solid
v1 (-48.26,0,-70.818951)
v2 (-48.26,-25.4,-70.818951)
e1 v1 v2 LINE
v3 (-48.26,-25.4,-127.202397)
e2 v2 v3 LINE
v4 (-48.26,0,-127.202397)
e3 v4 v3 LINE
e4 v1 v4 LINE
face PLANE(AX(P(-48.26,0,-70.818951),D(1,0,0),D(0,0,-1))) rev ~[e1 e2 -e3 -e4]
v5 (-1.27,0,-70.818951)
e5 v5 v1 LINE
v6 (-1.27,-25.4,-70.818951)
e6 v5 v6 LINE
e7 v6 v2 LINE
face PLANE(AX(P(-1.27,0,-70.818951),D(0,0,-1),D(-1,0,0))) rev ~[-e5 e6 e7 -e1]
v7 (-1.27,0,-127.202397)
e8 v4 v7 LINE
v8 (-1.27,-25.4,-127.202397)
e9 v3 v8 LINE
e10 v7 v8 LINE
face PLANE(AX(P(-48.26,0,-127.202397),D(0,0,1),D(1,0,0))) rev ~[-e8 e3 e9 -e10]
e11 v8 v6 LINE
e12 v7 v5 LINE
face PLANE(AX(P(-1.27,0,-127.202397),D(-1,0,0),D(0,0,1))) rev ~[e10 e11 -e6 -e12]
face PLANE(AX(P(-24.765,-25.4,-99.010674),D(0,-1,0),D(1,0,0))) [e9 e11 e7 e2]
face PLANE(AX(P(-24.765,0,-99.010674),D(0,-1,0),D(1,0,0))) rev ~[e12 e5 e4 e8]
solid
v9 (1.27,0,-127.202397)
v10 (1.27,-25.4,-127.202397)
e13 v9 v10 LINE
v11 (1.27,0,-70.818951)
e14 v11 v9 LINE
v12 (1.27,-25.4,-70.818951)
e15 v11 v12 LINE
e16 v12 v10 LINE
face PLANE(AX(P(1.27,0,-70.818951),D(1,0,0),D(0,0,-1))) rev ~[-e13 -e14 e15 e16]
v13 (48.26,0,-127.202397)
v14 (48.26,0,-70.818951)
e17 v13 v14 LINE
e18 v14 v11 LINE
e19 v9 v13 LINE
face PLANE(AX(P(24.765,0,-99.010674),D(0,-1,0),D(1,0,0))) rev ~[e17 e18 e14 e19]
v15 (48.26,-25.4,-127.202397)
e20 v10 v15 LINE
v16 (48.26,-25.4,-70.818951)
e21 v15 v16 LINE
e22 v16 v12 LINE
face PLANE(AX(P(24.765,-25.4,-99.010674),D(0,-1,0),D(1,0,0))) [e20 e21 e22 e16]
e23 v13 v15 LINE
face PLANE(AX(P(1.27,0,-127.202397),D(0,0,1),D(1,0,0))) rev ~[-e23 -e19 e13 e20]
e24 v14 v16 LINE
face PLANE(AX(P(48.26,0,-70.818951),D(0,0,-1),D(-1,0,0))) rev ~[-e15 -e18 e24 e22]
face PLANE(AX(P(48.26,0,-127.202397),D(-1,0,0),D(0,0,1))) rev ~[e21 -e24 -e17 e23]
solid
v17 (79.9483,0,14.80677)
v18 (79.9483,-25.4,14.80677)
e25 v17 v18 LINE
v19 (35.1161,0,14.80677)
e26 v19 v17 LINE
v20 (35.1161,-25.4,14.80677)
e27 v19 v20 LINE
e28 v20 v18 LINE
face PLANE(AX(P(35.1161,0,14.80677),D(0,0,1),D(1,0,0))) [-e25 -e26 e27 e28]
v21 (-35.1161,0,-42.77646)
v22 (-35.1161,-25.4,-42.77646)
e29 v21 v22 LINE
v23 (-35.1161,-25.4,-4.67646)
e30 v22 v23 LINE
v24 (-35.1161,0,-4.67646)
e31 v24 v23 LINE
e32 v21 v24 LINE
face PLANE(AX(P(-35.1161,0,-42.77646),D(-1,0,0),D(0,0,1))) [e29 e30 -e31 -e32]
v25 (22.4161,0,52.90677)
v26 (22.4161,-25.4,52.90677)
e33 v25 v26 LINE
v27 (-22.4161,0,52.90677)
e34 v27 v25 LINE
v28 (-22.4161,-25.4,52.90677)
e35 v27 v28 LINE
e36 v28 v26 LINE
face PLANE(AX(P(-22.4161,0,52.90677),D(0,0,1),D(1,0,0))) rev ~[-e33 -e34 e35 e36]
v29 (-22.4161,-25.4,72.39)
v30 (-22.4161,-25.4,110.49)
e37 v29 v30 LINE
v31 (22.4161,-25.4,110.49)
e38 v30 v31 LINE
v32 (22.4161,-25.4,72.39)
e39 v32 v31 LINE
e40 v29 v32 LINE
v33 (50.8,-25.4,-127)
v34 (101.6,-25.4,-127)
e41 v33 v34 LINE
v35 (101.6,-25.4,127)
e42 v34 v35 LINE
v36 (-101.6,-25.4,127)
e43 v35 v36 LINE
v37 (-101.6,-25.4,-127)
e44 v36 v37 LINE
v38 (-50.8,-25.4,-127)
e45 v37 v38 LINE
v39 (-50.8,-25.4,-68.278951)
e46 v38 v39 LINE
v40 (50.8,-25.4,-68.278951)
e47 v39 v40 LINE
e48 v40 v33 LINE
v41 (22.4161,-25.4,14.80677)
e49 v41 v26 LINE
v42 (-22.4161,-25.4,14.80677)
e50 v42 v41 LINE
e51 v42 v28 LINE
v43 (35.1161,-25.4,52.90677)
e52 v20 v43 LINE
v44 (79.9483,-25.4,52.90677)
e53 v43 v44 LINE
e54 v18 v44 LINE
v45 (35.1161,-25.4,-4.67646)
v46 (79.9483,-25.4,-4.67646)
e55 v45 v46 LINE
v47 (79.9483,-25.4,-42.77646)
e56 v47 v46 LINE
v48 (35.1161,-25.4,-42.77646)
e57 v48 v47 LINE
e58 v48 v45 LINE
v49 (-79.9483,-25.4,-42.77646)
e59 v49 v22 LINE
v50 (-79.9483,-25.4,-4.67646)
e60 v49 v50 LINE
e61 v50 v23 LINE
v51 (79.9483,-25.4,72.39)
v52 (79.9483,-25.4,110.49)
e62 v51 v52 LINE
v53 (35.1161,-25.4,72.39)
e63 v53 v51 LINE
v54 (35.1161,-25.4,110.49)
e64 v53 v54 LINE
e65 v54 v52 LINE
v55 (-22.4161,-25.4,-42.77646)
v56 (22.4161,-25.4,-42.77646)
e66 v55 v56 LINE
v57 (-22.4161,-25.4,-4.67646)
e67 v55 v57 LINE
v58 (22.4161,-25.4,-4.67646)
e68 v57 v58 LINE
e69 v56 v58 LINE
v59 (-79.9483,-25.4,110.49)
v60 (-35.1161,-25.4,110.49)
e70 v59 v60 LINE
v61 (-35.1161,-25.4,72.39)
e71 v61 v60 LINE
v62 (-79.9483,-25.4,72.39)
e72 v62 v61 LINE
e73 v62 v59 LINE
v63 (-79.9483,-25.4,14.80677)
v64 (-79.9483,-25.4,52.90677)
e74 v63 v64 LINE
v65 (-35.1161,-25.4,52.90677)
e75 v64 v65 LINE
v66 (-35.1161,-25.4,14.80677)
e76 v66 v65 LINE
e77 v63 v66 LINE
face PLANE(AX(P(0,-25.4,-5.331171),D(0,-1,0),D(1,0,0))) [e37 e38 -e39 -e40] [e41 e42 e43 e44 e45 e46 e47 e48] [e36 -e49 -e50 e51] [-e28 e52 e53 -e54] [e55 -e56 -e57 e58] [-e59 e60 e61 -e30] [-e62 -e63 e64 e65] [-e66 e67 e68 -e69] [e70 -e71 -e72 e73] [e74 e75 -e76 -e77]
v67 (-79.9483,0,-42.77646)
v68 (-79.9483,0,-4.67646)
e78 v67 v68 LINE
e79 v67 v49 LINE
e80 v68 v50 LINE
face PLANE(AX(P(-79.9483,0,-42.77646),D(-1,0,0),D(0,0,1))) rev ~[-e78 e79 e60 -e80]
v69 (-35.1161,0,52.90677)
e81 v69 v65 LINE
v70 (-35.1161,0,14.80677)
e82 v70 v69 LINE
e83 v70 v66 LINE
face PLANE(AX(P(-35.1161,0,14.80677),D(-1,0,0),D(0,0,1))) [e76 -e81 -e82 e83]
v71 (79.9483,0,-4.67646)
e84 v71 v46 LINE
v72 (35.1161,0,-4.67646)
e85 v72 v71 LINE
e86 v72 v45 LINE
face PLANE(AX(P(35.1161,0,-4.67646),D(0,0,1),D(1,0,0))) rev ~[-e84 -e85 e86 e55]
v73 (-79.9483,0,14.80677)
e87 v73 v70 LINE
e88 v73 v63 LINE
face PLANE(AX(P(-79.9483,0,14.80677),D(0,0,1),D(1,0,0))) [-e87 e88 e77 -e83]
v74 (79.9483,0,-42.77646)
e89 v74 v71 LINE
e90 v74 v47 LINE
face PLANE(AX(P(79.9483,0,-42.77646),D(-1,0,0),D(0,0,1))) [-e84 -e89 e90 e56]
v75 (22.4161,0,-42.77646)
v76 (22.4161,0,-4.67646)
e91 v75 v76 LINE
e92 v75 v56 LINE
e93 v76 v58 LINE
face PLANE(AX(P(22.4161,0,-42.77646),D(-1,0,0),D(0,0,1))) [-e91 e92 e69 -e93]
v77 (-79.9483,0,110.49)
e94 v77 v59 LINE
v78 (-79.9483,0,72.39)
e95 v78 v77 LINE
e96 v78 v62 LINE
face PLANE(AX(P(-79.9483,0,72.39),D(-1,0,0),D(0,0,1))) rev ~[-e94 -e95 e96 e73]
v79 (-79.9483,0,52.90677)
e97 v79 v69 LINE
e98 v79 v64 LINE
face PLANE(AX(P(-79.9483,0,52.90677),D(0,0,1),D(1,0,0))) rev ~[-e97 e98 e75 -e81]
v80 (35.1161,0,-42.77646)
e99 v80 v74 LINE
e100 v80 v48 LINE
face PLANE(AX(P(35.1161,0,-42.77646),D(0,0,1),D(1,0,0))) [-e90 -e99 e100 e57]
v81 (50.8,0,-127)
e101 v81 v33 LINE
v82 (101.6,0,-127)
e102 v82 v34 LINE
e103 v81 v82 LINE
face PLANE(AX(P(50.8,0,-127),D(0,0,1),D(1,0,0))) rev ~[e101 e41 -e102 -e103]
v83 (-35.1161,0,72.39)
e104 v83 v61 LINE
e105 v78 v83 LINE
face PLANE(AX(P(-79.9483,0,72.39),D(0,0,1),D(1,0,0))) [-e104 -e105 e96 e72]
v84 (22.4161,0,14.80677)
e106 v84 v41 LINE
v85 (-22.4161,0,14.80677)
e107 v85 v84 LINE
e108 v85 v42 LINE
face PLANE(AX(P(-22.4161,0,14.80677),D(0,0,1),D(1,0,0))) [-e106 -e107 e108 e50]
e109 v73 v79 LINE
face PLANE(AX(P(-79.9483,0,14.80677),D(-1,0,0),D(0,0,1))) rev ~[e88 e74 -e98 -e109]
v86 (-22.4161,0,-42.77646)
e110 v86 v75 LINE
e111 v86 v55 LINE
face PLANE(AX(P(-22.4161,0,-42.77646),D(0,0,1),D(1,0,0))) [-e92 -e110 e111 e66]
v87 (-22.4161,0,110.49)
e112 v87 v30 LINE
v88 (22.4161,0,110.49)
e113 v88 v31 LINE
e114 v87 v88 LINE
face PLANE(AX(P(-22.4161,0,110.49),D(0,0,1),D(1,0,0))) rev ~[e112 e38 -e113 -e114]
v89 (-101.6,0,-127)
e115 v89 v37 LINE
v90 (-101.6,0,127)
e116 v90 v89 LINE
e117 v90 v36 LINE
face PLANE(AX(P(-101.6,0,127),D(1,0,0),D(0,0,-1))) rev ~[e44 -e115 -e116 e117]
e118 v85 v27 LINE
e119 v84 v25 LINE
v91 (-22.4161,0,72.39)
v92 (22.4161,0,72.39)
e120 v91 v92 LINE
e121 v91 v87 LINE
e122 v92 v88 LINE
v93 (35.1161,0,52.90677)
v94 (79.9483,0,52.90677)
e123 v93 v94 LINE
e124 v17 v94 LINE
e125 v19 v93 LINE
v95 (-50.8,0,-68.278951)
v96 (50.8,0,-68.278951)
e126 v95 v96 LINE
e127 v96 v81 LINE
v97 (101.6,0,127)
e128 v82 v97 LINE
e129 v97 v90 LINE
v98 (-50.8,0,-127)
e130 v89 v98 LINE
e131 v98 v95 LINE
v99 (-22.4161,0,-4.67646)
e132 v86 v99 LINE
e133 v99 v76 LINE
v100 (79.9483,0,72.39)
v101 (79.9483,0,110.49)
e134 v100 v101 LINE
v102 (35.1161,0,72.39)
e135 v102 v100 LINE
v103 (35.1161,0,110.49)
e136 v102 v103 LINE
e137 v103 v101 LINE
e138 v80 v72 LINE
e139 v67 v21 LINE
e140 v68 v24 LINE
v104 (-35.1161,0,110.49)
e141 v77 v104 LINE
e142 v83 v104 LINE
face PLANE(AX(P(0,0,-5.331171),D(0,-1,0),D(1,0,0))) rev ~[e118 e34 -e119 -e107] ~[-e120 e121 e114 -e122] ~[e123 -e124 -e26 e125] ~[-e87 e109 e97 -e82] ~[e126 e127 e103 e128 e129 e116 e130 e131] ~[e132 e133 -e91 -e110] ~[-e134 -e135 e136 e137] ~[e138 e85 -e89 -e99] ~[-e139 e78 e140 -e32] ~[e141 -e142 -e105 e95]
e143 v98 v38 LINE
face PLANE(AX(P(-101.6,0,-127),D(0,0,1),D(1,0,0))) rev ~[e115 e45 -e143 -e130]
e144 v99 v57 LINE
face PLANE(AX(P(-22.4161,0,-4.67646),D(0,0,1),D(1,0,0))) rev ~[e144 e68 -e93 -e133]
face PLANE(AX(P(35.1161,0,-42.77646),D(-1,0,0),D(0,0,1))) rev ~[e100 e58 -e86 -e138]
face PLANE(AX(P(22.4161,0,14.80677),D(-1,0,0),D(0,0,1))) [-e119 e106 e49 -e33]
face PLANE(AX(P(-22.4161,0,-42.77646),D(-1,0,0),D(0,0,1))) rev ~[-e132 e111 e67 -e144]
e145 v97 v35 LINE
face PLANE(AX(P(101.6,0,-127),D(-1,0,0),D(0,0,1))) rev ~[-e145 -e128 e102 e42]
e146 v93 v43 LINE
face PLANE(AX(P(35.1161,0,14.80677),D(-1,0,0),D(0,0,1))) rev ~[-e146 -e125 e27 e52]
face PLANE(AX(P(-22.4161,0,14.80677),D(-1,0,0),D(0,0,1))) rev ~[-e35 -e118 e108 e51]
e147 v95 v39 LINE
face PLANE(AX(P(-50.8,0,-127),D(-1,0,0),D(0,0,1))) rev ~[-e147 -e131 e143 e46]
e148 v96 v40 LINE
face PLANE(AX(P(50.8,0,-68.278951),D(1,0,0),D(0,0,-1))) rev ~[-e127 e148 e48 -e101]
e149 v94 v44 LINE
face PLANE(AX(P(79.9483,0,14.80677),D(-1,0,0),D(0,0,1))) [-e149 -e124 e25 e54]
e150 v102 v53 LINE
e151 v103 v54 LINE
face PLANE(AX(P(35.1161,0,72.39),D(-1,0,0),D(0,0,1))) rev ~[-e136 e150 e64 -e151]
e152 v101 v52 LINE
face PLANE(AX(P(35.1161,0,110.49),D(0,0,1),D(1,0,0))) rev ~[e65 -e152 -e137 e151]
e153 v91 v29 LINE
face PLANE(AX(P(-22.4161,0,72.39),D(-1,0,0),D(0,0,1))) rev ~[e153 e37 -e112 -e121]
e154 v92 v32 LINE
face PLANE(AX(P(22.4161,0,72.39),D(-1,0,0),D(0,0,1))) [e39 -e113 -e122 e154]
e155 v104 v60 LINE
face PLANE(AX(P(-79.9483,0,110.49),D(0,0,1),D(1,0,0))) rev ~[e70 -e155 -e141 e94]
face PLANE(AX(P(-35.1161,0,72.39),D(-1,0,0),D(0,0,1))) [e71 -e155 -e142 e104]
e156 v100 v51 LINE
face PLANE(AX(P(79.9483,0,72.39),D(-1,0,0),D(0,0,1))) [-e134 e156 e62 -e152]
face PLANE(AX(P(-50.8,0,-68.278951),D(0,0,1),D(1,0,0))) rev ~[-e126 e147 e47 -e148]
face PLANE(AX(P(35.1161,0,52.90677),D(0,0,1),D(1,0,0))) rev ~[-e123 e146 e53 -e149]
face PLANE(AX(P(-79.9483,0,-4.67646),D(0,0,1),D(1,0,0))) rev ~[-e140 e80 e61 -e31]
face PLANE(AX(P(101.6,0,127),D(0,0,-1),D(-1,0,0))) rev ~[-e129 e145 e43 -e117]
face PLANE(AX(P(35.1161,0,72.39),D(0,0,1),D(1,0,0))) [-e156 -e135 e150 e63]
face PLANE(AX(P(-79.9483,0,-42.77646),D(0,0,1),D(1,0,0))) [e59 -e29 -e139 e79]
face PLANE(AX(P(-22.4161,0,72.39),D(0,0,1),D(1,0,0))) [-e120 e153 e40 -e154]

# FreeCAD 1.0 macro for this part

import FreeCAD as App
import Part
import Sketcher
from FreeCAD import Vector
Q = App.Units.Quantity


def add_polygon(sketch, points):
    """Adds a closed chain of lines whose ends are joined by coincident constraints."""
    first, n = sketch.GeometryCount, len(points)
    for a, b in zip(points, points[1:] + points[:1]):
        sketch.addGeometry(Part.LineSegment(App.Vector(*a, 0), App.Vector(*b, 0)), False)
    for i in range(n):
        sketch.addConstraint(Sketcher.Constraint("Coincident", first + i, 2, first + (i + 1) % n, 1))

doc = App.newDocument("Part")
body = doc.addObject("PartDesign::Body", "Body")
body.AllowCompound = True

sketch1 = body.newObject("Sketcher::SketchObject", "Sketch")
sketch1.AttachmentSupport = (doc.getObject("XZ_Plane"), [""])
sketch1.MapMode = "FlatFace"
add_polygon(sketch1, [(102, 127), (-102, 127), (-102, -127), (-51, -127), (-51, -68), (51, -68), (51, -127), (102, -127)])
add_polygon(sketch1, [(-35, -43), (-80, -43), (-80, -5), (-35, -5)])
add_polygon(sketch1, [(22, -43), (-22, -43), (-22, -5), (22, -5)])
add_polygon(sketch1, [(80, -43), (35, -43), (35, -5), (80, -5)])
add_polygon(sketch1, [(-35, 15), (-80, 15), (-80, 53), (-35, 53)])
add_polygon(sketch1, [(-35, 72), (-80, 72), (-80, 110), (-35, 110)])
add_polygon(sketch1, [(22, 15), (-22, 15), (-22, 53), (22, 53)])
add_polygon(sketch1, [(80, 15), (35, 15), (35, 53), (80, 53)])
add_polygon(sketch1, [(22, 72), (-22, 72), (-22, 110), (22, 110)])
add_polygon(sketch1, [(80, 72), (35, 72), (35, 110), (80, 110)])
add_polygon(sketch1, [(-48, -71), (-48, -127), (-1, -127), (-1, -71)])
add_polygon(sketch1, [(1, -127), (48, -127), (48, -71), (1, -71)])
sketch1.addConstraint(Sketcher.Constraint("Horizontal", 0))
sketch1.addConstraint(Sketcher.Constraint("Vertical", 1))
sketch1.addConstraint(Sketcher.Constraint("Horizontal", 2))
sketch1.addConstraint(Sketcher.Constraint("Vertical", 3))
sketch1.addConstraint(Sketcher.Constraint("Horizontal", 4))
sketch1.addConstraint(Sketcher.Constraint("Vertical", 5))
sketch1.addConstraint(Sketcher.Constraint("Horizontal", 6))
sketch1.addConstraint(Sketcher.Constraint("Vertical", 7))
sketch1.addConstraint(Sketcher.Constraint("Horizontal", 8))
sketch1.addConstraint(Sketcher.Constraint("Vertical", 9))
sketch1.addConstraint(Sketcher.Constraint("Horizontal", 10))
sketch1.addConstraint(Sketcher.Constraint("Vertical", 11))
sketch1.addConstraint(Sketcher.Constraint("Horizontal", 12))
sketch1.addConstraint(Sketcher.Constraint("Vertical", 13))
sketch1.addConstraint(Sketcher.Constraint("Horizontal", 14))
sketch1.addConstraint(Sketcher.Constraint("Vertical", 15))
sketch1.addConstraint(Sketcher.Constraint("Horizontal", 16))
sketch1.addConstraint(Sketcher.Constraint("Vertical", 17))
sketch1.addConstraint(Sketcher.Constraint("Horizontal", 18))
sketch1.addConstraint(Sketcher.Constraint("Vertical", 19))
sketch1.addConstraint(Sketcher.Constraint("Horizontal", 20))
sketch1.addConstraint(Sketcher.Constraint("Vertical", 21))
sketch1.addConstraint(Sketcher.Constraint("Horizontal", 22))
sketch1.addConstraint(Sketcher.Constraint("Vertical", 23))
sketch1.addConstraint(Sketcher.Constraint("Horizontal", 24))
sketch1.addConstraint(Sketcher.Constraint("Vertical", 25))
sketch1.addConstraint(Sketcher.Constraint("Horizontal", 26))
sketch1.addConstraint(Sketcher.Constraint("Vertical", 27))
sketch1.addConstraint(Sketcher.Constraint("Horizontal", 28))
sketch1.addConstraint(Sketcher.Constraint("Vertical", 29))
sketch1.addConstraint(Sketcher.Constraint("Horizontal", 30))
sketch1.addConstraint(Sketcher.Constraint("Vertical", 31))
sketch1.addConstraint(Sketcher.Constraint("Horizontal", 32))
sketch1.addConstraint(Sketcher.Constraint("Vertical", 33))
sketch1.addConstraint(Sketcher.Constraint("Horizontal", 34))
sketch1.addConstraint(Sketcher.Constraint("Vertical", 35))
sketch1.addConstraint(Sketcher.Constraint("Horizontal", 36))
sketch1.addConstraint(Sketcher.Constraint("Vertical", 37))
sketch1.addConstraint(Sketcher.Constraint("Horizontal", 38))
sketch1.addConstraint(Sketcher.Constraint("Vertical", 39))
sketch1.addConstraint(Sketcher.Constraint("Horizontal", 40))
sketch1.addConstraint(Sketcher.Constraint("Vertical", 41))
sketch1.addConstraint(Sketcher.Constraint("Horizontal", 42))
sketch1.addConstraint(Sketcher.Constraint("Vertical", 43))
sketch1.addConstraint(Sketcher.Constraint("Vertical", 44))
sketch1.addConstraint(Sketcher.Constraint("Horizontal", 45))
sketch1.addConstraint(Sketcher.Constraint("Vertical", 46))
sketch1.addConstraint(Sketcher.Constraint("Horizontal", 47))
sketch1.addConstraint(Sketcher.Constraint("Horizontal", 48))
sketch1.addConstraint(Sketcher.Constraint("Vertical", 49))
sketch1.addConstraint(Sketcher.Constraint("Horizontal", 50))
sketch1.addConstraint(Sketcher.Constraint("Vertical", 51))
sketch1.addConstraint(Sketcher.Constraint("Symmetric", 0, 2, 6, 2, -1, 1))
sketch1.addConstraint(Sketcher.Constraint("Symmetric", 2, 2, 5, 2, -2))
sketch1.addConstraint(Sketcher.Constraint("Symmetric", 11, 2, 16, 2, -2))
sketch1.addConstraint(Sketcher.Constraint("Symmetric", 9, 2, 18, 2, -2))
sketch1.addConstraint(Sketcher.Constraint("Symmetric", 23, 2, 32, 2, -2))
sketch1.addConstraint(Sketcher.Constraint("Symmetric", 21, 2, 34, 2, -2))
sketch1.addConstraint(Sketcher.Constraint("Symmetric", 27, 2, 40, 2, -2))
sketch1.addConstraint(Sketcher.Constraint("Symmetric", 25, 2, 42, 2, -2))
sketch1.addConstraint(Sketcher.Constraint("Symmetric", 44, 2, 48, 2, -2))
sketch1.addConstraint(Sketcher.Constraint("Symmetric", 46, 2, 50, 2, -2))
sketch1.addConstraint(Sketcher.Constraint("Horizontal", 11, 2, 12, 2))
sketch1.addConstraint(Sketcher.Constraint("Horizontal", 10, 2, 13, 2))
sketch1.addConstraint(Sketcher.Constraint("Horizontal", 23, 2, 28, 2))
sketch1.addConstraint(Sketcher.Constraint("Horizontal", 22, 2, 29, 2))
sketch1.addConstraint(Sketcher.Constraint("Horizontal", 27, 2, 36, 2))
sketch1.addConstraint(Sketcher.Constraint("Horizontal", 26, 2, 37, 2))
sketch1.addConstraint(Sketcher.Constraint("Vertical", 9, 2, 20, 2))
sketch1.addConstraint(Sketcher.Constraint("Vertical", 11, 2, 22, 2))
sketch1.addConstraint(Sketcher.Constraint("Vertical", 21, 2, 24, 2))
sketch1.addConstraint(Sketcher.Constraint("Vertical", 23, 2, 26, 2))
sketch1.addConstraint(Sketcher.Constraint("Vertical", 13, 2, 28, 2))
sketch1.addConstraint(Sketcher.Constraint("Vertical", 15, 2, 30, 2))
sketch1.addConstraint(Sketcher.Constraint("Vertical", 29, 2, 36, 2))
sketch1.addConstraint(Sketcher.Constraint("Vertical", 31, 2, 38, 2))
sketch1.addConstraint(Sketcher.Constraint("Equal", 10, 12))
sketch1.addConstraint(Sketcher.Constraint("Equal", 19, 21))
sketch1.addConstraint(Sketcher.Constraint("Equal", 23, 25))
sketch1.addConstraint(Sketcher.Constraint("DistanceX", 0, 2, 0, 1, Q("8 in")))
sketch1.addConstraint(Sketcher.Constraint("DistanceX", 2, 1, 2, 2, Q("2 in")))
sketch1.addConstraint(Sketcher.Constraint("DistanceY", 1, 2, 1, 1, Q("10 in")))
sketch1.addConstraint(Sketcher.Constraint("DistanceY", 9, 1, 9, 2, Q("1.5 in")))
sketch1.addConstraint(Sketcher.Constraint("DistanceX", 45, 1, 45, 2, Q("1.85 in")))
sketch1.addConstraint(Sketcher.Constraint("DistanceX", 44, 2, -1, 1, Q("1.9 in")))
sketch1.addConstraint(Sketcher.Constraint("DistanceX", 11, 2, 12, 2, Q("0.5 in")))
sketch1.addConstraint(Sketcher.Constraint("DistanceX", 15, 2, 16, 2, Q("0.5 in")))
sketch1.addConstraint(Sketcher.Constraint("DistanceY", 46, 2, 3, 2, Q("0.1 in")))
sketch1.addConstraint(Sketcher.Constraint("DistanceY", -1, 1, 24, 2, Q("2.85 in")))
sketch1.addConstraint(Sketcher.Constraint("DistanceX", 8, 2, 8, 1, Q("44.8322 mm")))
sketch1.addConstraint(Sketcher.Constraint("DistanceY", 3, 1, 3, 2, Q("58.721049 mm")))
sketch1.addConstraint(Sketcher.Constraint("DistanceY", 44, 2, 44, 1, Q("56.383446 mm")))
sketch1.addConstraint(Sketcher.Constraint("DistanceY", 8, 2, -1, 1, Q("42.77646 mm")))
sketch1.addConstraint(Sketcher.Constraint("DistanceY", -1, 1, 20, 2, Q("14.80677 mm")))
pad1 = body.newObject("PartDesign::Pad", "Pad")
pad1.Profile = sketch1
pad1.Length = Q("1 in")

doc.recompute()
